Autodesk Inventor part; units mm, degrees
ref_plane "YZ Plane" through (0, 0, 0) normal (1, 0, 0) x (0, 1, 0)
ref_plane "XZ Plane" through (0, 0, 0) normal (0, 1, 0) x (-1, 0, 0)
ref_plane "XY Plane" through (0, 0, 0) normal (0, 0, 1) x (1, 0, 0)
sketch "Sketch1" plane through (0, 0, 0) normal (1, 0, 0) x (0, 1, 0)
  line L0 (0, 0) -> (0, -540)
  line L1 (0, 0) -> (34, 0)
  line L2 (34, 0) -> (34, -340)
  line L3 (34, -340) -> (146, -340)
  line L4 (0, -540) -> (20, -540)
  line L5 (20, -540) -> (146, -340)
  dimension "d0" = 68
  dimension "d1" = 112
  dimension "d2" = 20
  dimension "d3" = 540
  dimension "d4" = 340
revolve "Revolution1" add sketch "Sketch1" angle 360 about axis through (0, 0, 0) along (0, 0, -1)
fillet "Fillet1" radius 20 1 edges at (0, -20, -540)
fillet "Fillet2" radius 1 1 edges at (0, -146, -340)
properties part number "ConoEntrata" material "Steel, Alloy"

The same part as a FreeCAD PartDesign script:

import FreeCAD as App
import Part
import Sketcher

V = App.Vector
Q = App.Units.Quantity


def edges_at(feature, points):
    """Names of the edges that pass closest to the given points."""
    edges = feature.Shape.Edges
    near = lambda p: min(range(len(edges)), key=lambda i: edges[i].distToShape(Part.Vertex(*p))[0])
    return sorted({f"Edge{near(p) + 1}" for p in points})

doc = App.newDocument("Part")
body = doc.addObject("PartDesign::Body", "Body")

# Sketch on YZ plane
sketch1 = body.newObject("Sketcher::SketchObject", "Sketch")
sketch1.AttachmentSupport = (doc.getObject("YZ_Plane"), [""])
sketch1.MapMode = "FlatFace"
sketch1.addGeometry(Part.LineSegment(V(34, 0, 0), V(0, 0, 0)), False)
sketch1.addGeometry(Part.LineSegment(V(0, 0, 0), V(0, -540, 0)), False)
sketch1.addGeometry(Part.LineSegment(V(0, -540, 0), V(20, -540, 0)), False)
sketch1.addGeometry(Part.LineSegment(V(20, -540, 0), V(146, -340, 0)), False)
sketch1.addGeometry(Part.LineSegment(V(146, -340, 0), V(34, -340, 0)), False)
sketch1.addGeometry(Part.LineSegment(V(34, -340, 0), V(34, 0, 0)), False)
sketch1.addConstraint(Sketcher.Constraint("Coincident", 0, 2, 1, 1))
sketch1.addConstraint(Sketcher.Constraint("Coincident", 1, 2, 2, 1))
sketch1.addConstraint(Sketcher.Constraint("Coincident", 2, 2, 3, 1))
sketch1.addConstraint(Sketcher.Constraint("Coincident", 3, 2, 4, 1))
sketch1.addConstraint(Sketcher.Constraint("Coincident", 4, 2, 5, 1))
sketch1.addConstraint(Sketcher.Constraint("Coincident", 5, 2, 0, 1))
sketch1.addConstraint(Sketcher.Constraint("Horizontal", 0))
sketch1.addConstraint(Sketcher.Constraint("Vertical", 1))
sketch1.addConstraint(Sketcher.Constraint("Horizontal", 2))
sketch1.addConstraint(Sketcher.Constraint("Horizontal", 4))
sketch1.addConstraint(Sketcher.Constraint("Vertical", 5))
sketch1.addConstraint(Sketcher.Constraint("Coincident", 0, 2, -1, 1))
sketch1.addConstraint(Sketcher.Constraint("DistanceX", 2, 1, 2, 2, Q("20 mm")))
sketch1.addConstraint(Sketcher.Constraint("DistanceX", 4, 2, 4, 1, Q("112 mm")))
sketch1.addConstraint(Sketcher.Constraint("DistanceY", 1, 2, 1, 1, Q("540 mm")))
sketch1.addConstraint(Sketcher.Constraint("DistanceY", 5, 1, 5, 2, Q("340 mm")))
sketch1.addConstraint(Sketcher.Constraint("DistanceX", 0, 2, 0, 1, Q("34 mm")))
revolution = body.newObject("PartDesign::Revolution", "Revolution")
revolution.Profile = sketch1
revolution.ReferenceAxis = (sketch1, ["V_Axis"])
revolution.Angle = 360
doc.recompute()

fillet = body.newObject("PartDesign::Fillet", "Fillet")
fillet.Base = (revolution, edges_at(revolution, [(0, -20, -540)]))
fillet.Radius = 20
doc.recompute()

fillet2 = body.newObject("PartDesign::Fillet", "Fillet001")
fillet2.Base = (fillet, edges_at(fillet, [(0, -146, -340)]))
fillet2.Radius = 1

doc.recompute()
